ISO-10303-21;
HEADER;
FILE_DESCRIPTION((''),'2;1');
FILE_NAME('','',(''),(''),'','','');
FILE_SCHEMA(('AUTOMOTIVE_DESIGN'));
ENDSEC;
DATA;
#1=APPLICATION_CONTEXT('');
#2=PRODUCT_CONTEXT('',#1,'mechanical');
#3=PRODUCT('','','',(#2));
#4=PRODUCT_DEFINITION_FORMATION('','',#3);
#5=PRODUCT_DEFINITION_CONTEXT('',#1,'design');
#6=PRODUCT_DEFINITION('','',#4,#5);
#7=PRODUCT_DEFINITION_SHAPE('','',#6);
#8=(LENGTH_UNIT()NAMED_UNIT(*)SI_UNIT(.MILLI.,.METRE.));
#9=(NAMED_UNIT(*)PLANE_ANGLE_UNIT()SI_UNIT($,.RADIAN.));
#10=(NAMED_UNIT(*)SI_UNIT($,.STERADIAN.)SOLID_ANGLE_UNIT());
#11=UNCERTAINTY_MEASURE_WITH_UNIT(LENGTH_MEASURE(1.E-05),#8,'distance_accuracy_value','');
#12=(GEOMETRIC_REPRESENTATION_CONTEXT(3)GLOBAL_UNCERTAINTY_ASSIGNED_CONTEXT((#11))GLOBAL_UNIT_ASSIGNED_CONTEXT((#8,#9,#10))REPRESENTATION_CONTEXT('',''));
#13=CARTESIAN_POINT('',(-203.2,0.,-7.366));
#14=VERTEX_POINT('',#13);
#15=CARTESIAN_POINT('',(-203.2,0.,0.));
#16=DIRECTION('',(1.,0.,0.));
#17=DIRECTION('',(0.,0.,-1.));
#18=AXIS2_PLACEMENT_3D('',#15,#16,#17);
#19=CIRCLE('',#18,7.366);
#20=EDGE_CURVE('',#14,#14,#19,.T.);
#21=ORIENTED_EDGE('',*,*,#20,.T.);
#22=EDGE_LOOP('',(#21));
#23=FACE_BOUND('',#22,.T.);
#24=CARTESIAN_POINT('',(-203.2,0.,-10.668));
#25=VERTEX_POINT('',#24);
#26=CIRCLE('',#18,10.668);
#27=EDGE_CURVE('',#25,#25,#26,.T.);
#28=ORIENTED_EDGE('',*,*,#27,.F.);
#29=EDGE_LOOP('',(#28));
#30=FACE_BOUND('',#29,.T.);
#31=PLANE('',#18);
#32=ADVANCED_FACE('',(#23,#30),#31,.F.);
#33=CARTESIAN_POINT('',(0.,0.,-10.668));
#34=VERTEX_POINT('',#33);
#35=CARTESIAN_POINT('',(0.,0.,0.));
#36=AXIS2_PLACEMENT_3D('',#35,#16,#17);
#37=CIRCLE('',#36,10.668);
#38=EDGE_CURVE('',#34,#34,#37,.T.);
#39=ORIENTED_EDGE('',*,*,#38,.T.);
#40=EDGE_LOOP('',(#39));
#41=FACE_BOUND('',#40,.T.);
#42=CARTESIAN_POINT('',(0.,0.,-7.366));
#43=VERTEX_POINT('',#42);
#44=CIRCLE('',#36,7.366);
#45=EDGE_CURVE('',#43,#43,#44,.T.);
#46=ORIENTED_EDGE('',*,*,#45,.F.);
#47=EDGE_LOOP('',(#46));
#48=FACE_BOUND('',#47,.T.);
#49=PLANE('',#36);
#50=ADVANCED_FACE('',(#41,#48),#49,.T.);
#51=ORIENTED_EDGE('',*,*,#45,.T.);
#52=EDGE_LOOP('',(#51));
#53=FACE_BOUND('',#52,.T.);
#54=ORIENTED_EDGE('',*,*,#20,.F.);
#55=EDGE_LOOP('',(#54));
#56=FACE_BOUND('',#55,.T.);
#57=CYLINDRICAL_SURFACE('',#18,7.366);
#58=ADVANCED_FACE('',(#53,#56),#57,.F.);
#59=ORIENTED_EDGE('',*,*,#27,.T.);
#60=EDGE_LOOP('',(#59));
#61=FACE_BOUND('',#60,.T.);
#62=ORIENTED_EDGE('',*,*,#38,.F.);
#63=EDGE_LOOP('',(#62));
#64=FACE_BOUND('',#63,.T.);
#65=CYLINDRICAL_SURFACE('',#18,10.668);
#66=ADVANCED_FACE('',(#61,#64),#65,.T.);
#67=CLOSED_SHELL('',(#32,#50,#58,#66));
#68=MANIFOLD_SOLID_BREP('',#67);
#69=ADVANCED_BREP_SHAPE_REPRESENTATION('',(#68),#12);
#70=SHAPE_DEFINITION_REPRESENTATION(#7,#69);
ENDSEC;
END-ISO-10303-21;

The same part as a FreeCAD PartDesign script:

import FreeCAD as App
import Part
import Sketcher
from FreeCAD import Vector
Q = App.Units.Quantity

doc = App.newDocument("Part")
body = doc.addObject("PartDesign::Body", "Body")

sketch1 = doc.addObject("Sketcher::SketchObject", "Sketch")
body.addObject(sketch1)
sketch1.AttachmentSupport = (doc.YZ_Plane, [""])
sketch1.MapMode = "FlatFace"
sketch1.addGeometry([
    Part.Circle(Vector(0, 0, 0), Vector(0, 0, 1), 11),
    Part.Circle(Vector(0, 0, 0), Vector(0, 0, 1), 7),
], False)
sketch1.addConstraint([
    Sketcher.Constraint("Coincident", 0, 3, -1, 1),
    Sketcher.Constraint("Coincident", 1, 3, -1, 1),
    Sketcher.Constraint("Diameter", 0, Q("0.84 in")),
    Sketcher.Constraint("Diameter", 1, Q("0.58 in")),
])
pad1 = doc.addObject("PartDesign::Pad", "Pad")
body.addObject(pad1)
pad1.Profile = sketch1
pad1.Length = Q("8 in")
pad1.Reversed = True

doc.recompute()
